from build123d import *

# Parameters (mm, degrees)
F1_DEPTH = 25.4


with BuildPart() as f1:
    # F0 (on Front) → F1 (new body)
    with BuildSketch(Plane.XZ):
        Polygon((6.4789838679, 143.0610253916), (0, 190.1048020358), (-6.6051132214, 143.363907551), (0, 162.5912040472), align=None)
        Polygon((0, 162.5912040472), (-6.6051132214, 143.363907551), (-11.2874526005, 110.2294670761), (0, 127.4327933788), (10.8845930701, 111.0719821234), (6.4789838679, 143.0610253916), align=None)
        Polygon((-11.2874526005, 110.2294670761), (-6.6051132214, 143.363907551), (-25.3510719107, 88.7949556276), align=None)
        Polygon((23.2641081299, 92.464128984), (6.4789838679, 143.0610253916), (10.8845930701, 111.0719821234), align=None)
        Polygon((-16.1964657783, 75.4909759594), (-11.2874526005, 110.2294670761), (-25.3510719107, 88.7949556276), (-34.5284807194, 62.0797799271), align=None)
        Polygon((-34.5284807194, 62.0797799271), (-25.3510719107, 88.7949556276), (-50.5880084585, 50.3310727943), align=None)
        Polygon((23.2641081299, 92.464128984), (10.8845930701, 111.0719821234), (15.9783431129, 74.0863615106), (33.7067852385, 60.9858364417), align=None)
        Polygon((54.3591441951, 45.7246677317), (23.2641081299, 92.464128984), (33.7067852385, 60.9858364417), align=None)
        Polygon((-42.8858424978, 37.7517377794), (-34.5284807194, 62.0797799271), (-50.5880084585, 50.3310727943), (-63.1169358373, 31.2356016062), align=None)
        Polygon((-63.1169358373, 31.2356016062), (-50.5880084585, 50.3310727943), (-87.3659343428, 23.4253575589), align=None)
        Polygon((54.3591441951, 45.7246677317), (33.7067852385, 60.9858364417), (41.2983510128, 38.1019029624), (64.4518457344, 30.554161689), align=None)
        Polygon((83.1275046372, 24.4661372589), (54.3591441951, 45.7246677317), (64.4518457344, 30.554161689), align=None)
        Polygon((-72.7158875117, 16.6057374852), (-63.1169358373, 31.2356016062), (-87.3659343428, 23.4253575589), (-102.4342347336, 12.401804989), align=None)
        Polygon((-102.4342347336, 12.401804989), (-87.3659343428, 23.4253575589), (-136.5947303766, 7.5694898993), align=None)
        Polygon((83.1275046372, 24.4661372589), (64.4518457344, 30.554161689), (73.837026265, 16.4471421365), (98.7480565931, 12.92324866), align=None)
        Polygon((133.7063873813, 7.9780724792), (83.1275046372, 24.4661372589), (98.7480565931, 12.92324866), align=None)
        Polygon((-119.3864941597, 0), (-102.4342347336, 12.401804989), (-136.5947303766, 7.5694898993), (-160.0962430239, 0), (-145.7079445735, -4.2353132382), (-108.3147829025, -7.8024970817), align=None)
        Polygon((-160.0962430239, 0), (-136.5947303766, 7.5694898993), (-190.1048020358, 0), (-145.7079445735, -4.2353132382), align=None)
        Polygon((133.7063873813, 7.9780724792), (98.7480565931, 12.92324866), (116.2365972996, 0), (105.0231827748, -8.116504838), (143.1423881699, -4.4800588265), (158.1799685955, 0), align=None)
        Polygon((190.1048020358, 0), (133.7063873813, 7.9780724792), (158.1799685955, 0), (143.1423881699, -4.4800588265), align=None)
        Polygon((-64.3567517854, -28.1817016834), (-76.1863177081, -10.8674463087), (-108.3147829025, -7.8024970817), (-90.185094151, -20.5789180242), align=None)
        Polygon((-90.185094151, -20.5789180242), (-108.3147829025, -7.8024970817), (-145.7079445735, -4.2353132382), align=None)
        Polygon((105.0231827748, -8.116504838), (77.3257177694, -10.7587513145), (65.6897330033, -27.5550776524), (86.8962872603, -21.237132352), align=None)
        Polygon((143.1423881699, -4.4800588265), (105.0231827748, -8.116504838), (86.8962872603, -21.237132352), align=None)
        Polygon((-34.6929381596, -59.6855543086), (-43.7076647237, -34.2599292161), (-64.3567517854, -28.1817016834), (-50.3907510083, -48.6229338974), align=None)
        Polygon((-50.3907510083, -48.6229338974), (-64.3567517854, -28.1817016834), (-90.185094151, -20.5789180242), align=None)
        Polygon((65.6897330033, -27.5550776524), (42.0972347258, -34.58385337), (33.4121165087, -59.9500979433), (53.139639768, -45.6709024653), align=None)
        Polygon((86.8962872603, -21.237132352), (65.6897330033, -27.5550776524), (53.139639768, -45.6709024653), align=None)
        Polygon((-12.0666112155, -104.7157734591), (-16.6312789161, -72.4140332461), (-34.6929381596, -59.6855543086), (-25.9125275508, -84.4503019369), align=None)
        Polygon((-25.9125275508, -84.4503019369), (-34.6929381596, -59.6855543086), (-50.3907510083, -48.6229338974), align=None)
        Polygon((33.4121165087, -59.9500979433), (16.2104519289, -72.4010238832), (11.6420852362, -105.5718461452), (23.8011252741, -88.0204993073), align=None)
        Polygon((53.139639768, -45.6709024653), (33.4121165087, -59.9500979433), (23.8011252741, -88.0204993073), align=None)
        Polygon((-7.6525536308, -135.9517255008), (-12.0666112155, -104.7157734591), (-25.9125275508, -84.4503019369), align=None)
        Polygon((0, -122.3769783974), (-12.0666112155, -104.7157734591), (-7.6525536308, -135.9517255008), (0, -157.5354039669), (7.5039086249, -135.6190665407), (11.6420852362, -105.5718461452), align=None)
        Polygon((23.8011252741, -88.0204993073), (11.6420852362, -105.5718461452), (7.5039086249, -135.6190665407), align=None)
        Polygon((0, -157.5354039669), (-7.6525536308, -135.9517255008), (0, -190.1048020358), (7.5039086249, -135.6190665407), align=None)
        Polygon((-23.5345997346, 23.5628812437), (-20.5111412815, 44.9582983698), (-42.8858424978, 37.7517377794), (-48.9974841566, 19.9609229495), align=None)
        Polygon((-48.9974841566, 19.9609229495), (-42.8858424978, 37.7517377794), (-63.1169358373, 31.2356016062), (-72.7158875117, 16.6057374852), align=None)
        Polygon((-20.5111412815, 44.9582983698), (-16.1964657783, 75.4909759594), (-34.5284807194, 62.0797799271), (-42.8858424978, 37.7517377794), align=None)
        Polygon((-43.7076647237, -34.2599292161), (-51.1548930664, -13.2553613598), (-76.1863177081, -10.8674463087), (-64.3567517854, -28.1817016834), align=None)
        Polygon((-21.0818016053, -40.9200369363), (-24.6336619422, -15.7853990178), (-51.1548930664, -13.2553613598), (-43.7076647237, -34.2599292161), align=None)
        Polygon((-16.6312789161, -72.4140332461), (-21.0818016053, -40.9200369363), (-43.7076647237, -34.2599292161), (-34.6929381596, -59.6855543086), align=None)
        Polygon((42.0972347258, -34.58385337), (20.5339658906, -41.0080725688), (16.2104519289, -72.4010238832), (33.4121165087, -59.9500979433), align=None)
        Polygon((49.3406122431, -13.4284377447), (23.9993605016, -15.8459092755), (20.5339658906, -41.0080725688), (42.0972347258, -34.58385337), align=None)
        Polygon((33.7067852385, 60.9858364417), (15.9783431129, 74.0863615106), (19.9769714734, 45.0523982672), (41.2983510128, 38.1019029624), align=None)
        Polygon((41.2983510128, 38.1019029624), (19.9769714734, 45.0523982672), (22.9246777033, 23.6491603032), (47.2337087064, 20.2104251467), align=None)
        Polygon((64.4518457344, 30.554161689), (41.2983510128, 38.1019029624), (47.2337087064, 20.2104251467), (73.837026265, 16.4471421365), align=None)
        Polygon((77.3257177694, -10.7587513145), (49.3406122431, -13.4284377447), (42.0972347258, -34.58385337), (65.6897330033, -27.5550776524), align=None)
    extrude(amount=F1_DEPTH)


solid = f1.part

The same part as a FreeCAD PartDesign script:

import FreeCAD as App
import Part
import Sketcher
from FreeCAD import Vector
Q = App.Units.Quantity

doc = App.newDocument("Part")
body = doc.addObject("PartDesign::Body", "Body")

# Sketch on XZ plane
sketch1 = body.newObject("Sketcher::SketchObject", "Sketch")
sketch1.AttachmentSupport = (doc.getObject("XZ_Plane"), [""])
sketch1.MapMode = "FlatFace"
sketch1.addGeometry(Part.LineSegment(Vector(7.503909, -135.619067, 0), Vector(23.801125, -88.020499, 0)), False)
sketch1.addGeometry(Part.LineSegment(Vector(23.801125, -88.020499, 0), Vector(53.13964, -45.670902, 0)), False)
sketch1.addGeometry(Part.LineSegment(Vector(53.13964, -45.670902, 0), Vector(86.896287, -21.237132, 0)), False)
sketch1.addGeometry(Part.LineSegment(Vector(86.896287, -21.237132, 0), Vector(143.142388, -4.480059, 0)), False)
sketch1.addGeometry(Part.LineSegment(Vector(143.142388, -4.480059, 0), Vector(190.104802, 0, 0)), False)
sketch1.addGeometry(Part.LineSegment(Vector(190.104802, 0, 0), Vector(133.706387, 7.978072, 0)), False)
sketch1.addGeometry(Part.LineSegment(Vector(133.706387, 7.978072, 0), Vector(83.127505, 24.466137, 0)), False)
sketch1.addGeometry(Part.LineSegment(Vector(83.127505, 24.466137, 0), Vector(54.359144, 45.724668, 0)), False)
sketch1.addGeometry(Part.LineSegment(Vector(54.359144, 45.724668, 0), Vector(23.264108, 92.464129, 0)), False)
sketch1.addGeometry(Part.LineSegment(Vector(23.264108, 92.464129, 0), Vector(6.478984, 143.061025, 0)), False)
sketch1.addGeometry(Part.LineSegment(Vector(6.478984, 143.061025, 0), Vector(0, 190.104802, 0)), False)
sketch1.addGeometry(Part.LineSegment(Vector(0, 190.104802, 0), Vector(-6.605113, 143.363908, 0)), False)
sketch1.addGeometry(Part.LineSegment(Vector(-6.605113, 143.363908, 0), Vector(-25.351072, 88.794956, 0)), False)
sketch1.addGeometry(Part.LineSegment(Vector(-25.351072, 88.794956, 0), Vector(-50.588008, 50.331073, 0)), False)
sketch1.addGeometry(Part.LineSegment(Vector(-50.588008, 50.331073, 0), Vector(-87.365934, 23.425358, 0)), False)
sketch1.addGeometry(Part.LineSegment(Vector(-87.365934, 23.425358, 0), Vector(-136.59473, 7.56949, 0)), False)
sketch1.addGeometry(Part.LineSegment(Vector(-136.59473, 7.56949, 0), Vector(-190.104802, 0, 0)), False)
sketch1.addGeometry(Part.LineSegment(Vector(-190.104802, 0, 0), Vector(-145.707945, -4.235313, 0)), False)
sketch1.addGeometry(Part.LineSegment(Vector(-145.707945, -4.235313, 0), Vector(-90.185094, -20.578918, 0)), False)
sketch1.addGeometry(Part.LineSegment(Vector(-90.185094, -20.578918, 0), Vector(-50.390751, -48.622934, 0)), False)
sketch1.addGeometry(Part.LineSegment(Vector(-50.390751, -48.622934, 0), Vector(-25.912528, -84.450302, 0)), False)
sketch1.addGeometry(Part.LineSegment(Vector(-25.912528, -84.450302, 0), Vector(-7.652554, -135.951726, 0)), False)
sketch1.addGeometry(Part.LineSegment(Vector(-7.652554, -135.951726, 0), Vector(0, -190.104802, 0)), False)
sketch1.addGeometry(Part.LineSegment(Vector(0, -190.104802, 0), Vector(7.503909, -135.619067, 0)), False)
sketch1.addGeometry(Part.LineSegment(Vector(11.642085, -105.571846, 0), Vector(0, -122.376978, 0)), False)
sketch1.addGeometry(Part.LineSegment(Vector(0, -122.376978, 0), Vector(-12.066611, -104.715773, 0)), False)
sketch1.addGeometry(Part.LineSegment(Vector(-12.066611, -104.715773, 0), Vector(-21.081802, -40.920037, 0)), False)
sketch1.addGeometry(Part.LineSegment(Vector(-21.081802, -40.920037, 0), Vector(-24.633662, -15.785399, 0)), False)
sketch1.addGeometry(Part.LineSegment(Vector(-24.633662, -15.785399, 0), Vector(-51.154893, -13.255361, 0)), False)
sketch1.addGeometry(Part.LineSegment(Vector(-51.154893, -13.255361, 0), Vector(-108.314783, -7.802497, 0)), False)
sketch1.addGeometry(Part.LineSegment(Vector(-108.314783, -7.802497, 0), Vector(-119.386494, 0, 0)), False)
sketch1.addGeometry(Part.LineSegment(Vector(-119.386494, 0, 0), Vector(-102.434235, 12.401805, 0)), False)
sketch1.addGeometry(Part.LineSegment(Vector(-102.434235, 12.401805, 0), Vector(-48.997484, 19.960923, 0)), False)
sketch1.addGeometry(Part.LineSegment(Vector(-48.997484, 19.960923, 0), Vector(-23.5346, 23.562881, 0)), False)
sketch1.addGeometry(Part.LineSegment(Vector(-23.5346, 23.562881, 0), Vector(-20.511141, 44.958298, 0)), False)
sketch1.addGeometry(Part.LineSegment(Vector(-20.511141, 44.958298, 0), Vector(-16.196466, 75.490976, 0)), False)
sketch1.addGeometry(Part.LineSegment(Vector(-16.196466, 75.490976, 0), Vector(-11.287453, 110.229467, 0)), False)
sketch1.addGeometry(Part.LineSegment(Vector(-11.287453, 110.229467, 0), Vector(0, 127.432793, 0)), False)
sketch1.addGeometry(Part.LineSegment(Vector(0, 127.432793, 0), Vector(10.884593, 111.071982, 0)), False)
sketch1.addGeometry(Part.LineSegment(Vector(10.884593, 111.071982, 0), Vector(19.976971, 45.052398, 0)), False)
sketch1.addGeometry(Part.LineSegment(Vector(19.976971, 45.052398, 0), Vector(22.924678, 23.64916, 0)), False)
sketch1.addGeometry(Part.LineSegment(Vector(22.924678, 23.64916, 0), Vector(73.837026, 16.447142, 0)), False)
sketch1.addGeometry(Part.LineSegment(Vector(73.837026, 16.447142, 0), Vector(98.748057, 12.923249, 0)), False)
sketch1.addGeometry(Part.LineSegment(Vector(98.748057, 12.923249, 0), Vector(116.236597, 0, 0)), False)
sketch1.addGeometry(Part.LineSegment(Vector(116.236597, 0, 0), Vector(105.023183, -8.116505, 0)), False)
sketch1.addGeometry(Part.LineSegment(Vector(105.023183, -8.116505, 0), Vector(77.325718, -10.758751, 0)), False)
sketch1.addGeometry(Part.LineSegment(Vector(77.325718, -10.758751, 0), Vector(49.340612, -13.428438, 0)), False)
sketch1.addGeometry(Part.LineSegment(Vector(49.340612, -13.428438, 0), Vector(23.999361, -15.845909, 0)), False)
sketch1.addGeometry(Part.LineSegment(Vector(23.999361, -15.845909, 0), Vector(20.533966, -41.008073, 0)), False)
sketch1.addGeometry(Part.LineSegment(Vector(20.533966, -41.008073, 0), Vector(11.642085, -105.571846, 0)), False)
sketch1.addConstraint(Sketcher.Constraint("Coincident", 0, 2, 1, 1))
sketch1.addConstraint(Sketcher.Constraint("Coincident", 1, 2, 2, 1))
sketch1.addConstraint(Sketcher.Constraint("Coincident", 2, 2, 3, 1))
sketch1.addConstraint(Sketcher.Constraint("Coincident", 3, 2, 4, 1))
sketch1.addConstraint(Sketcher.Constraint("Coincident", 4, 2, 5, 1))
sketch1.addConstraint(Sketcher.Constraint("Coincident", 5, 2, 6, 1))
sketch1.addConstraint(Sketcher.Constraint("Coincident", 6, 2, 7, 1))
sketch1.addConstraint(Sketcher.Constraint("Coincident", 7, 2, 8, 1))
sketch1.addConstraint(Sketcher.Constraint("Coincident", 8, 2, 9, 1))
sketch1.addConstraint(Sketcher.Constraint("Coincident", 9, 2, 10, 1))
sketch1.addConstraint(Sketcher.Constraint("Coincident", 10, 2, 11, 1))
sketch1.addConstraint(Sketcher.Constraint("Coincident", 11, 2, 12, 1))
sketch1.addConstraint(Sketcher.Constraint("Coincident", 12, 2, 13, 1))
sketch1.addConstraint(Sketcher.Constraint("Coincident", 13, 2, 14, 1))
sketch1.addConstraint(Sketcher.Constraint("Coincident", 14, 2, 15, 1))
sketch1.addConstraint(Sketcher.Constraint("Coincident", 15, 2, 16, 1))
sketch1.addConstraint(Sketcher.Constraint("Coincident", 16, 2, 17, 1))
sketch1.addConstraint(Sketcher.Constraint("Coincident", 17, 2, 18, 1))
sketch1.addConstraint(Sketcher.Constraint("Coincident", 18, 2, 19, 1))
sketch1.addConstraint(Sketcher.Constraint("Coincident", 19, 2, 20, 1))
sketch1.addConstraint(Sketcher.Constraint("Coincident", 20, 2, 21, 1))
sketch1.addConstraint(Sketcher.Constraint("Coincident", 21, 2, 22, 1))
sketch1.addConstraint(Sketcher.Constraint("Coincident", 22, 2, 23, 1))
sketch1.addConstraint(Sketcher.Constraint("Coincident", 23, 2, 0, 1))
sketch1.addConstraint(Sketcher.Constraint("Coincident", 24, 2, 25, 1))
sketch1.addConstraint(Sketcher.Constraint("Coincident", 25, 2, 26, 1))
sketch1.addConstraint(Sketcher.Constraint("Coincident", 26, 2, 27, 1))
sketch1.addConstraint(Sketcher.Constraint("Coincident", 27, 2, 28, 1))
sketch1.addConstraint(Sketcher.Constraint("Coincident", 28, 2, 29, 1))
sketch1.addConstraint(Sketcher.Constraint("Coincident", 29, 2, 30, 1))
sketch1.addConstraint(Sketcher.Constraint("Coincident", 30, 2, 31, 1))
sketch1.addConstraint(Sketcher.Constraint("Coincident", 31, 2, 32, 1))
sketch1.addConstraint(Sketcher.Constraint("Coincident", 32, 2, 33, 1))
sketch1.addConstraint(Sketcher.Constraint("Coincident", 33, 2, 34, 1))
sketch1.addConstraint(Sketcher.Constraint("Coincident", 34, 2, 35, 1))
sketch1.addConstraint(Sketcher.Constraint("Coincident", 35, 2, 36, 1))
sketch1.addConstraint(Sketcher.Constraint("Coincident", 36, 2, 37, 1))
sketch1.addConstraint(Sketcher.Constraint("Coincident", 37, 2, 38, 1))
sketch1.addConstraint(Sketcher.Constraint("Coincident", 38, 2, 39, 1))
sketch1.addConstraint(Sketcher.Constraint("Coincident", 39, 2, 40, 1))
sketch1.addConstraint(Sketcher.Constraint("Coincident", 40, 2, 41, 1))
sketch1.addConstraint(Sketcher.Constraint("Coincident", 41, 2, 42, 1))
sketch1.addConstraint(Sketcher.Constraint("Coincident", 42, 2, 43, 1))
sketch1.addConstraint(Sketcher.Constraint("Coincident", 43, 2, 44, 1))
sketch1.addConstraint(Sketcher.Constraint("Coincident", 44, 2, 45, 1))
sketch1.addConstraint(Sketcher.Constraint("Coincident", 45, 2, 46, 1))
sketch1.addConstraint(Sketcher.Constraint("Coincident", 46, 2, 47, 1))
sketch1.addConstraint(Sketcher.Constraint("Coincident", 47, 2, 48, 1))
sketch1.addConstraint(Sketcher.Constraint("Coincident", 48, 2, 49, 1))
sketch1.addConstraint(Sketcher.Constraint("Coincident", 49, 2, 24, 1))
sketch1.addConstraint(Sketcher.Constraint("PointOnObject", 4, 2, -1))
sketch1.addConstraint(Sketcher.Constraint("PointOnObject", 10, 2, -2))
sketch1.addConstraint(Sketcher.Constraint("PointOnObject", 16, 2, -1))
sketch1.addConstraint(Sketcher.Constraint("PointOnObject", 22, 2, -2))
sketch1.addConstraint(Sketcher.Constraint("PointOnObject", 24, 2, -2))
sketch1.addConstraint(Sketcher.Constraint("PointOnObject", 30, 2, -1))
sketch1.addConstraint(Sketcher.Constraint("PointOnObject", 37, 2, -2))
sketch1.addConstraint(Sketcher.Constraint("PointOnObject", 43, 2, -1))
sketch1.addConstraint(Sketcher.Constraint("DistanceY", 19, 2, 15, 2, Q("2.2123001 in")))
sketch1.addConstraint(Sketcher.Constraint("Distance", 47, Q("25.4563 mm")))
sketch1.addConstraint(Sketcher.Constraint("DistanceY", 0, 2, -1, 1, Q("88.020499 mm")))
sketch1.addConstraint(Sketcher.Constraint("DistanceY", 20, 2, -1, 1, Q("84.450302 mm")))
sketch1.addConstraint(Sketcher.Constraint("DistanceX", 26, 2, -1, 1, Q("21.081802 mm")))
sketch1.addConstraint(Sketcher.Constraint("DistanceY", 27, 2, -1, 1, Q("15.785399 mm")))
sketch1.addConstraint(Sketcher.Constraint("DistanceX", 33, 2, -1, 1, Q("23.5346 mm")))
sketch1.addConstraint(Sketcher.Constraint("DistanceY", -1, 1, 34, 2, Q("44.958298 mm")))
sketch1.addConstraint(Sketcher.Constraint("DistanceY", -1, 1, 39, 2, Q("45.052398 mm")))
sketch1.addConstraint(Sketcher.Constraint("DistanceX", 2, 2, 3, 2, Q("56.246101 mm")))
sketch1.addConstraint(Sketcher.Constraint("DistanceX", 5, 2, 3, 2, Q("9.436001 mm")))
sketch1.addConstraint(Sketcher.Constraint("DistanceY", 2, 2, 7, 2, Q("66.9618 mm")))
sketch1.addConstraint(Sketcher.Constraint("DistanceY", 14, 2, 12, 2, Q("65.369598 mm")))
sketch1.addConstraint(Sketcher.Constraint("DistanceY", 20, 2, 1, 2, Q("38.779399 mm")))
sketch1.addConstraint(Sketcher.Constraint("DistanceY", 22, 2, 20, 2, Q("105.6545 mm")))
sketch1.addConstraint(Sketcher.Constraint("DistanceX", 18, 2, 28, 2, Q("39.030201 mm")))
sketch1.addConstraint(Sketcher.Constraint("DistanceX", 30, 2, 18, 2, Q("29.2014 mm")))
sketch1.addConstraint(Sketcher.Constraint("DistanceX", 31, 2, 14, 2, Q("15.0683 mm")))
sketch1.addConstraint(Sketcher.Constraint("DistanceY", 45, 2, 42, 2, Q("23.682 mm")))
sketch1.addConstraint(Sketcher.Constraint("DistanceY", 46, 2, 40, 2, Q("37.077598 mm")))
sketch1.addConstraint(Sketcher.Constraint("Distance", 0, Q("50.31126 mm")))
sketch1.addConstraint(Sketcher.Constraint("Distance", 3, Q("58.68921 mm")))
sketch1.addConstraint(Sketcher.Constraint("Distance", 4, Q("47.175621 mm")))
sketch1.addConstraint(Sketcher.Constraint("Distance", 7, Q("35.77071 mm")))
sketch1.addConstraint(Sketcher.Constraint("Distance", 8, Q("56.138031 mm")))
sketch1.addConstraint(Sketcher.Constraint("Distance", 10, Q("47.487832 mm")))
sketch1.addConstraint(Sketcher.Constraint("Distance", 12, Q("57.69906 mm")))
sketch1.addConstraint(Sketcher.Constraint("Distance", 15, Q("51.71927 mm")))
sketch1.addConstraint(Sketcher.Constraint("Distance", 24, Q("20.443841 mm")))
sketch1.addConstraint(Sketcher.Constraint("Distance", 26, Q("64.429571 mm")))
sketch1.addConstraint(Sketcher.Constraint("Distance", 27, Q("25.38436 mm")))
sketch1.addConstraint(Sketcher.Constraint("Distance", 34, Q("21.607989 mm")))
sketch1.addConstraint(Sketcher.Constraint("Distance", 35, Q("30.836031 mm")))
sketch1.addConstraint(Sketcher.Constraint("Distance", 36, Q("35.083631 mm")))
sketch1.addConstraint(Sketcher.Constraint("Distance", 37, Q("20.575739 mm")))
sketch1.addConstraint(Sketcher.Constraint("Distance", 41, Q("51.419221 mm")))
sketch1.addConstraint(Sketcher.Constraint("Distance", 42, Q("25.159039 mm")))
sketch1.addConstraint(Sketcher.Constraint("Distance", 43, Q("21.745331 mm")))
sketch1.addConstraint(Sketcher.Constraint("Distance", 45, Q("27.82321 mm")))
sketch1.addConstraint(Sketcher.Constraint("DistanceX", -1, 1, 1, 2, Q("53.13964 mm")))
sketch1.addConstraint(Sketcher.Constraint("DistanceX", -1, 1, 3, 2, Q("143.142388 mm")))
sketch1.addConstraint(Sketcher.Constraint("DistanceY", 3, 2, -1, 1, Q("4.480059 mm")))
sketch1.addConstraint(Sketcher.Constraint("DistanceX", -1, 1, 8, 2, Q("23.264108 mm")))
sketch1.addConstraint(Sketcher.Constraint("DistanceY", -1, 1, 8, 2, Q("92.464129 mm")))
sketch1.addConstraint(Sketcher.Constraint("DistanceX", 12, 2, -1, 1, Q("25.351072 mm")))
sketch1.addConstraint(Sketcher.Constraint("DistanceX", 13, 2, -1, 1, Q("50.588008 mm")))
sketch1.addConstraint(Sketcher.Constraint("DistanceX", 15, 2, -1, 1, Q("136.59473 mm")))
sketch1.addConstraint(Sketcher.Constraint("DistanceY", -1, 1, 15, 2, Q("7.56949 mm")))
sketch1.addConstraint(Sketcher.Constraint("DistanceY", 18, 2, -1, 1, Q("20.578918 mm")))
sketch1.addConstraint(Sketcher.Constraint("DistanceX", 19, 2, -1, 1, Q("50.390751 mm")))
sketch1.addConstraint(Sketcher.Constraint("DistanceX", -1, 1, 23, 2, Q("7.503909 mm")))
sketch1.addConstraint(Sketcher.Constraint("DistanceY", 24, 2, -1, 1, Q("122.376978 mm")))
sketch1.addConstraint(Sketcher.Constraint("DistanceX", 25, 2, -1, 1, Q("12.066611 mm")))
sketch1.addConstraint(Sketcher.Constraint("DistanceX", 27, 2, -1, 1, Q("24.633662 mm")))
sketch1.addConstraint(Sketcher.Constraint("DistanceY", 28, 2, -1, 1, Q("13.255361 mm")))
sketch1.addConstraint(Sketcher.Constraint("DistanceY", -1, 1, 33, 2, Q("23.562881 mm")))
sketch1.addConstraint(Sketcher.Constraint("DistanceX", -1, 1, 39, 2, Q("19.976971 mm")))
sketch1.addConstraint(Sketcher.Constraint("DistanceY", -1, 1, 40, 2, Q("23.64916 mm")))
sketch1.addConstraint(Sketcher.Constraint("DistanceY", -1, 1, 42, 2, Q("12.923249 mm")))
sketch1.addConstraint(Sketcher.Constraint("DistanceX", -1, 1, 47, 2, Q("23.999361 mm")))
sketch1.addConstraint(Sketcher.Constraint("DistanceY", 47, 2, -1, 1, Q("15.845909 mm")))
sketch1.addConstraint(Sketcher.Constraint("DistanceX", 0, 2, 2, 2, Q("63.095162 mm")))
sketch1.addConstraint(Sketcher.Constraint("DistanceY", 3, 2, 5, 2, Q("12.458131 mm")))
sketch1.addConstraint(Sketcher.Constraint("DistanceY", 2, 2, 6, 2, Q("45.70327 mm")))
sketch1.addConstraint(Sketcher.Constraint("DistanceX", 9, 2, 7, 2, Q("47.88016 mm")))
sketch1.addConstraint(Sketcher.Constraint("DistanceY", 6, 2, 9, 2, Q("118.594888 mm")))
sketch1.addConstraint(Sketcher.Constraint("DistanceX", 11, 2, 8, 2, Q("29.869221 mm")))
sketch1.addConstraint(Sketcher.Constraint("DistanceY", 8, 2, 11, 2, Q("50.899779 mm")))
sketch1.addConstraint(Sketcher.Constraint("DistanceX", 16, 2, 15, 2, Q("53.510072 mm")))
sketch1.addConstraint(Sketcher.Constraint("DistanceX", 17, 2, 14, 2, Q("58.34201 mm")))
sketch1.addConstraint(Sketcher.Constraint("DistanceY", 17, 2, 14, 2, Q("27.660671 mm")))
sketch1.addConstraint(Sketcher.Constraint("DistanceX", 18, 2, 14, 2, Q("2.81916 mm")))
sketch1.addConstraint(Sketcher.Constraint("DistanceY", 18, 2, 13, 2, Q("70.909991 mm")))
sketch1.addConstraint(Sketcher.Constraint("DistanceX", 21, 2, 0, 2, Q("31.453679 mm")))
sketch1.addConstraint(Sketcher.Constraint("DistanceY", 21, 2, 19, 2, Q("87.328792 mm")))
sketch1.addConstraint(Sketcher.Constraint("DistanceX", 29, 2, 18, 2, Q("18.129689 mm")))
sketch1.addConstraint(Sketcher.Constraint("DistanceY", 18, 2, 29, 2, Q("12.776421 mm")))
sketch1.addConstraint(Sketcher.Constraint("DistanceY", 32, 2, 13, 2, Q("30.37015 mm")))
sketch1.addConstraint(Sketcher.Constraint("DistanceX", 28, 2, 32, 2, Q("2.157409 mm")))
sketch1.addConstraint(Sketcher.Constraint("DistanceY", 35, 2, 12, 2, Q("13.30398 mm")))
sketch1.addConstraint(Sketcher.Constraint("DistanceX", 12, 2, 36, 2, Q("14.063619 mm")))
sketch1.addConstraint(Sketcher.Constraint("DistanceY", 38, 2, 37, 2, Q("16.360811 mm")))
sketch1.addConstraint(Sketcher.Constraint("DistanceX", 9, 2, 38, 2, Q("4.405609 mm")))
sketch1.addConstraint(Sketcher.Constraint("DistanceX", 34, 2, 40, 2, Q("43.435819 mm")))
sketch1.addConstraint(Sketcher.Constraint("DistanceX", 41, 2, 6, 2, Q("9.290478 mm")))
sketch1.addConstraint(Sketcher.Constraint("DistanceX", 45, 2, 2, 2, Q("9.570569 mm")))
sketch1.addConstraint(Sketcher.Constraint("DistanceY", 1, 2, 48, 2, Q("4.66283 mm")))
sketch1.addConstraint(Sketcher.Constraint("DistanceX", 48, 2, 0, 2, Q("3.267159 mm")))
sketch1.addConstraint(Sketcher.Constraint("DistanceX", 49, 2, 0, 2, Q("12.15904 mm")))
sketch1.addConstraint(Sketcher.Constraint("Distance", 20, Q("43.391056 mm")))
sketch1.addConstraint(Sketcher.Constraint("Distance", 31, Q("21.004377 mm")))
sketch1.addConstraint(Sketcher.Constraint("Distance", 44, Q("13.842627 mm")))
pad1 = body.newObject("PartDesign::Pad", "Pad")
pad1.Profile = sketch1
pad1.Length = Q("1 in")

doc.recompute()
